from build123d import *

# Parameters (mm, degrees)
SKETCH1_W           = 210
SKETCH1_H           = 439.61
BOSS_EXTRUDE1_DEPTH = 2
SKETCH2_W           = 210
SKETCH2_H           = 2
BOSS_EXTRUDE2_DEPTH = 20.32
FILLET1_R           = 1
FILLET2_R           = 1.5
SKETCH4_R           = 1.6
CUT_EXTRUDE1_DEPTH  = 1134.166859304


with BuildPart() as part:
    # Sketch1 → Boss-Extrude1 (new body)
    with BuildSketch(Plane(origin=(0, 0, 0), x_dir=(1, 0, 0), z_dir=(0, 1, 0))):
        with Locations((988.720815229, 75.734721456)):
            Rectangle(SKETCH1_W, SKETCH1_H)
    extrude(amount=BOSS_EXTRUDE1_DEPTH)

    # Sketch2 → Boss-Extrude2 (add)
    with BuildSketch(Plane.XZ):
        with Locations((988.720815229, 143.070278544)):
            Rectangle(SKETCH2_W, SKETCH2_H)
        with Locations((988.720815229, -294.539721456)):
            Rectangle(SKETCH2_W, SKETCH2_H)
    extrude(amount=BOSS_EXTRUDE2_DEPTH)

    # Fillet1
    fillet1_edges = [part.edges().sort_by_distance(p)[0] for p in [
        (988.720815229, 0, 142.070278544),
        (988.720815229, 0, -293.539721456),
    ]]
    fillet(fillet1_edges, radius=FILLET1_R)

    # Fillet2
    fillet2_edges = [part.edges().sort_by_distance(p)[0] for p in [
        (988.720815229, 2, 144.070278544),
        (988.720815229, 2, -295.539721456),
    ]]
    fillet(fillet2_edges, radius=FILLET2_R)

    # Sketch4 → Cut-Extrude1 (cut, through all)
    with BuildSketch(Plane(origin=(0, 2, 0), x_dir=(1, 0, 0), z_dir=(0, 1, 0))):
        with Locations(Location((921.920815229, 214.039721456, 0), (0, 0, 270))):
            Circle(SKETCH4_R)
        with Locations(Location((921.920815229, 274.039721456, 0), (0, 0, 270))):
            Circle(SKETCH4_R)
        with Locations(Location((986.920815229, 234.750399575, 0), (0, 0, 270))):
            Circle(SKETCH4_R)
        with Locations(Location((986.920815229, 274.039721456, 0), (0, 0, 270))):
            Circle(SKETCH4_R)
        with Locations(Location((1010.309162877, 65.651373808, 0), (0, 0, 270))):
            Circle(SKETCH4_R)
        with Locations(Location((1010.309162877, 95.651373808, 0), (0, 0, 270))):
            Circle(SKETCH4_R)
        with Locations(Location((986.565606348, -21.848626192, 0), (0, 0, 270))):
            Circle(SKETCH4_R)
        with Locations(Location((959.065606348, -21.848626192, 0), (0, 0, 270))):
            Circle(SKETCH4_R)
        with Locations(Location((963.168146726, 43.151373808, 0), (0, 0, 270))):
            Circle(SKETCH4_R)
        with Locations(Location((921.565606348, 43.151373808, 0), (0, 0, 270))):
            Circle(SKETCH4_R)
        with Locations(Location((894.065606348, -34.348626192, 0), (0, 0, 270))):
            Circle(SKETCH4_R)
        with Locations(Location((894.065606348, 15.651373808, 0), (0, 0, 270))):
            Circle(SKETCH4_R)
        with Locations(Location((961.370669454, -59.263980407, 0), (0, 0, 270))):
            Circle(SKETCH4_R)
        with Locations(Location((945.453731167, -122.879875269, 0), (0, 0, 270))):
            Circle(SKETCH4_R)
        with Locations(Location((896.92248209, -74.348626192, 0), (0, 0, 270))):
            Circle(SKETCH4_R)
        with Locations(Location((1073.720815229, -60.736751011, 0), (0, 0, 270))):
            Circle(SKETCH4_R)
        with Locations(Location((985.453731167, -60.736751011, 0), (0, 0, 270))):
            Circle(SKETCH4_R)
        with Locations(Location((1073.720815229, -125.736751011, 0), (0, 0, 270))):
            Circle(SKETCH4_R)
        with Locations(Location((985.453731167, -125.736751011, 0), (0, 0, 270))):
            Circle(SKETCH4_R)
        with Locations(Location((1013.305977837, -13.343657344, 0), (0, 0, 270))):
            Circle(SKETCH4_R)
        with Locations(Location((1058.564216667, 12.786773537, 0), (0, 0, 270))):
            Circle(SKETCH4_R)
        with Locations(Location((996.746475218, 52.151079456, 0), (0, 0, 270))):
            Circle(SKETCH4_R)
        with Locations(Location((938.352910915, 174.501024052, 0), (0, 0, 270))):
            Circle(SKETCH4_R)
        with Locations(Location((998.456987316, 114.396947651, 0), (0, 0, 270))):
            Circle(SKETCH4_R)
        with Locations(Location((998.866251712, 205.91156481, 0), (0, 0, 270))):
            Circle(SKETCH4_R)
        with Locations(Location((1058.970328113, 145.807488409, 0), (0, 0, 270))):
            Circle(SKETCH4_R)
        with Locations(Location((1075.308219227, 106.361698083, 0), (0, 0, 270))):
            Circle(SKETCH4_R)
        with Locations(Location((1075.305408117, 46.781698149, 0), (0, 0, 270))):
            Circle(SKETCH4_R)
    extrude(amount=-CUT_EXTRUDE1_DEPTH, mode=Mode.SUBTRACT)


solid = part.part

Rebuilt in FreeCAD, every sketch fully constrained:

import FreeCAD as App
import Part
import Sketcher


def edges_at(feature, points):
    """Names of the edges that pass closest to the given points."""
    edges = feature.Shape.Edges
    near = lambda p: min(range(len(edges)), key=lambda i: edges[i].distToShape(Part.Vertex(*p))[0])
    return sorted({f"Edge{near(p) + 1}" for p in points})

doc = App.newDocument("Part")
body = doc.addObject("PartDesign::Body", "Body")

sketch1 = doc.addObject("Sketcher::SketchObject", "Sketch")
body.addObject(sketch1)
sketch1.AttachmentSupport = (doc.XZ_Plane, [""])
sketch1.MapMode = "FlatFace"
sketch1.addGeometry([
    Part.LineSegment(App.Vector(883.720815, -295.539721, 0), App.Vector(883.720815, 144.070279, 0)),
    Part.LineSegment(App.Vector(883.720815, 144.070279, 0), App.Vector(1093.720815, 144.070279, 0)),
    Part.LineSegment(App.Vector(1093.720815, 144.070279, 0), App.Vector(1093.720815, -295.539721, 0)),
    Part.LineSegment(App.Vector(1093.720815, -295.539721, 0), App.Vector(883.720815, -295.539721, 0)),
], False)
sketch1.addConstraint([
    Sketcher.Constraint("Coincident", 0, 2, 1, 1),
    Sketcher.Constraint("Coincident", 1, 2, 2, 1),
    Sketcher.Constraint("Coincident", 2, 2, 3, 1),
    Sketcher.Constraint("Coincident", 3, 2, 0, 1),
    Sketcher.Constraint("Vertical", 0),
    Sketcher.Constraint("Horizontal", 1),
    Sketcher.Constraint("Vertical", 2),
    Sketcher.Constraint("Horizontal", 3),
    Sketcher.Constraint("DistanceX", 1, 1, 1, 2, 210.0),
    Sketcher.Constraint("DistanceY", 0, 1, 0, 2, 439.61),
    Sketcher.Constraint("DistanceY", -1, 1, 0, 2, 144.070279),
    Sketcher.Constraint("DistanceX", -1, 1, 0, 2, 883.720815),
])
pad1 = doc.addObject("PartDesign::Pad", "Pad")
body.addObject(pad1)
pad1.Profile = sketch1
pad1.Length = 2
pad1.Reversed = True

sketch2 = doc.addObject("Sketcher::SketchObject", "Sketch001")
body.addObject(sketch2)
sketch2.AttachmentSupport = (doc.XZ_Plane, [""])
sketch2.MapMode = "FlatFace"
sketch2.addGeometry([
    Part.LineSegment(App.Vector(883.720815, 144.070279, 0), App.Vector(883.720815, 142.070279, 0)),
    Part.LineSegment(App.Vector(883.720815, 142.070279, 0), App.Vector(1093.720815, 142.070279, 0)),
    Part.LineSegment(App.Vector(1093.720815, 142.070279, 0), App.Vector(1093.720815, 144.070279, 0)),
    Part.LineSegment(App.Vector(1093.720815, 144.070279, 0), App.Vector(883.720815, 144.070279, 0)),
    Part.LineSegment(App.Vector(883.720815, -293.539721, 0), App.Vector(883.720815, -295.539721, 0)),
    Part.LineSegment(App.Vector(883.720815, -295.539721, 0), App.Vector(1093.720815, -295.539721, 0)),
    Part.LineSegment(App.Vector(1093.720815, -295.539721, 0), App.Vector(1093.720815, -293.539721, 0)),
    Part.LineSegment(App.Vector(1093.720815, -293.539721, 0), App.Vector(883.720815, -293.539721, 0)),
], False)
sketch2.addConstraint([
    Sketcher.Constraint("Coincident", 0, 2, 1, 1),
    Sketcher.Constraint("Coincident", 1, 2, 2, 1),
    Sketcher.Constraint("Coincident", 2, 2, 3, 1),
    Sketcher.Constraint("Coincident", 3, 2, 0, 1),
    Sketcher.Constraint("Coincident", 4, 2, 5, 1),
    Sketcher.Constraint("Coincident", 5, 2, 6, 1),
    Sketcher.Constraint("Coincident", 6, 2, 7, 1),
    Sketcher.Constraint("Coincident", 7, 2, 4, 1),
    Sketcher.Constraint("Vertical", 0),
    Sketcher.Constraint("Horizontal", 1),
    Sketcher.Constraint("Vertical", 2),
    Sketcher.Constraint("Horizontal", 3),
    Sketcher.Constraint("Vertical", 4),
    Sketcher.Constraint("Horizontal", 5),
    Sketcher.Constraint("Vertical", 6),
    Sketcher.Constraint("Horizontal", 7),
    Sketcher.Constraint("Vertical", 3, 2, 4, 2),
    Sketcher.Constraint("Vertical", 2, 2, 5, 2),
    Sketcher.Constraint("Equal", 2, 4),
    Sketcher.Constraint("DistanceX", 1, 1, 1, 2, 210.0),
    Sketcher.Constraint("DistanceY", 0, 2, 0, 1, 2.0),
    Sketcher.Constraint("DistanceY", 4, 2, 0, 2, 437.61),
    Sketcher.Constraint("DistanceY", -1, 1, 0, 2, 142.070279),
    Sketcher.Constraint("DistanceX", -1, 1, 0, 2, 883.720815),
])
pad2 = doc.addObject("PartDesign::Pad", "Pad001")
body.addObject(pad2)
pad2.Profile = sketch2
pad2.Length = 20.32
doc.recompute()

fillet = doc.addObject("PartDesign::Fillet", "Fillet")
body.addObject(fillet)
fillet.Base = (pad2, edges_at(pad2, [(988.721, 0, 142.07), (988.721, 0, -293.54)]))
fillet.Radius = 1
doc.recompute()

fillet2 = doc.addObject("PartDesign::Fillet", "Fillet001")
body.addObject(fillet2)
fillet2.Base = (fillet, edges_at(fillet, [(988.721, 2, 144.07), (988.721, 2, -295.54)]))
fillet2.Radius = 1.5

sketch3 = doc.addObject("Sketcher::SketchObject", "Sketch002")
body.addObject(sketch3)
sketch3.AttachmentSupport = (doc.XZ_Plane, [""])
sketch3.MapMode = "FlatFace"
sketch3.AttachmentOffset = App.Placement(App.Vector(0, 0, -2), App.Rotation())
sketch3.addGeometry([
    Part.Circle(App.Vector(921.920815, -214.039721, 0), App.Vector(0, 0, 1), 1.6),
    Part.Circle(App.Vector(921.920815, -274.039721, 0), App.Vector(0, 0, 1), 1.6),
    Part.Circle(App.Vector(986.920815, -234.7504, 0), App.Vector(0, 0, 1), 1.6),
    Part.Circle(App.Vector(986.920815, -274.039721, 0), App.Vector(0, 0, 1), 1.6),
    Part.Circle(App.Vector(1010.309163, -65.651374, 0), App.Vector(0, 0, 1), 1.6),
    Part.Circle(App.Vector(1010.309163, -95.651374, 0), App.Vector(0, 0, 1), 1.6),
    Part.Circle(App.Vector(986.565606, 21.848626, 0), App.Vector(0, 0, 1), 1.6),
    Part.Circle(App.Vector(959.065606, 21.848626, 0), App.Vector(0, 0, 1), 1.6),
    Part.Circle(App.Vector(963.168147, -43.151374, 0), App.Vector(0, 0, 1), 1.6),
    Part.Circle(App.Vector(921.565606, -43.151374, 0), App.Vector(0, 0, 1), 1.6),
    Part.Circle(App.Vector(894.065606, 34.348626, 0), App.Vector(0, 0, 1), 1.6),
    Part.Circle(App.Vector(894.065606, -15.651374, 0), App.Vector(0, 0, 1), 1.6),
    Part.Circle(App.Vector(961.370669, 59.26398, 0), App.Vector(0, 0, 1), 1.6),
    Part.Circle(App.Vector(945.453731, 122.879875, 0), App.Vector(0, 0, 1), 1.6),
    Part.Circle(App.Vector(896.922482, 74.348626, 0), App.Vector(0, 0, 1), 1.6),
    Part.Circle(App.Vector(1073.720815, 60.736751, 0), App.Vector(0, 0, 1), 1.6),
    Part.Circle(App.Vector(985.453731, 60.736751, 0), App.Vector(0, 0, 1), 1.6),
    Part.Circle(App.Vector(1073.720815, 125.736751, 0), App.Vector(0, 0, 1), 1.6),
    Part.Circle(App.Vector(985.453731, 125.736751, 0), App.Vector(0, 0, 1), 1.6),
    Part.Circle(App.Vector(1013.305978, 13.343657, 0), App.Vector(0, 0, 1), 1.6),
    Part.Circle(App.Vector(1058.564217, -12.786774, 0), App.Vector(0, 0, 1), 1.6),
    Part.Circle(App.Vector(996.746475, -52.151079, 0), App.Vector(0, 0, 1), 1.6),
    Part.Circle(App.Vector(938.352911, -174.501024, 0), App.Vector(0, 0, 1), 1.6),
    Part.Circle(App.Vector(998.456987, -114.396948, 0), App.Vector(0, 0, 1), 1.6),
    Part.Circle(App.Vector(998.866252, -205.911565, 0), App.Vector(0, 0, 1), 1.6),
    Part.Circle(App.Vector(1058.970328, -145.807488, 0), App.Vector(0, 0, 1), 1.6),
    Part.Circle(App.Vector(1075.308219, -106.361698, 0), App.Vector(0, 0, 1), 1.6),
    Part.Circle(App.Vector(1075.305408, -46.781698, 0), App.Vector(0, 0, 1), 1.6),
], False)
sketch3.addConstraint([
    Sketcher.Constraint("Equal", 0, 1),
    Sketcher.Constraint("Equal", 1, 2),
    Sketcher.Constraint("Equal", 2, 3),
    Sketcher.Constraint("Equal", 3, 4),
    Sketcher.Constraint("Equal", 4, 5),
    Sketcher.Constraint("Equal", 5, 6),
    Sketcher.Constraint("Equal", 6, 7),
    Sketcher.Constraint("Equal", 7, 8),
    Sketcher.Constraint("Equal", 8, 9),
    Sketcher.Constraint("Equal", 9, 10),
    Sketcher.Constraint("Equal", 10, 11),
    Sketcher.Constraint("Equal", 11, 12),
    Sketcher.Constraint("Equal", 12, 13),
    Sketcher.Constraint("Equal", 13, 14),
    Sketcher.Constraint("Equal", 14, 15),
    Sketcher.Constraint("Equal", 15, 16),
    Sketcher.Constraint("Equal", 16, 17),
    Sketcher.Constraint("Equal", 17, 18),
    Sketcher.Constraint("Equal", 18, 19),
    Sketcher.Constraint("Equal", 19, 20),
    Sketcher.Constraint("Equal", 20, 21),
    Sketcher.Constraint("Equal", 21, 22),
    Sketcher.Constraint("Equal", 22, 23),
    Sketcher.Constraint("Equal", 23, 24),
    Sketcher.Constraint("Equal", 24, 25),
    Sketcher.Constraint("Equal", 25, 26),
    Sketcher.Constraint("Equal", 26, 27),
    Sketcher.Constraint("Horizontal", 1, 3, 3, 3),
    Sketcher.Constraint("Horizontal", 6, 3, 7, 3),
    Sketcher.Constraint("Horizontal", 8, 3, 9, 3),
    Sketcher.Constraint("Horizontal", 15, 3, 16, 3),
    Sketcher.Constraint("Horizontal", 17, 3, 18, 3),
    Sketcher.Constraint("Vertical", 0, 3, 1, 3),
    Sketcher.Constraint("Vertical", 2, 3, 3, 3),
    Sketcher.Constraint("Vertical", 4, 3, 5, 3),
    Sketcher.Constraint("Vertical", 10, 3, 11, 3),
    Sketcher.Constraint("Vertical", 15, 3, 17, 3),
    Sketcher.Constraint("Vertical", 16, 3, 18, 3),
    Sketcher.Constraint("Diameter", 0, 3.2),
    Sketcher.Constraint("DistanceY", 1, 3, 0, 3, 60.0),
    Sketcher.Constraint("DistanceX", 0, 3, 2, 3, 65.0),
    Sketcher.Constraint("DistanceY", 5, 3, 4, 3, 30.0),
    Sketcher.Constraint("DistanceY", 8, 3, 7, 3, 65.0),
    Sketcher.Constraint("DistanceX", 9, 3, 6, 3, 65.0),
    Sketcher.Constraint("DistanceX", 10, 3, 7, 3, 65.0),
    Sketcher.Constraint("DistanceY", 4, 3, 10, 3, 100.0),
    Sketcher.Constraint("DistanceY", 11, 3, 10, 3, 50.0),
    Sketcher.Constraint("DistanceY", 10, 3, 14, 3, 40.0),
    Sketcher.Constraint("DistanceX", 13, 3, 16, 3, 40.0),
    Sketcher.Constraint("DistanceY", 15, 3, 17, 3, 65.0),
    Sketcher.Constraint("DistanceY", 4, 3, 6, 3, 87.5),
    Sketcher.Constraint("DistanceX", 7, 3, 6, 3, 27.5),
    Sketcher.Constraint("DistanceY", 26, 3, 27, 3, 59.58),
    Sketcher.Constraint("DistanceY", 2, 3, -1, 1, 234.7504),
    Sketcher.Constraint("DistanceY", 26, 3, -1, 1, 106.361698),
    Sketcher.Constraint("DistanceY", 4, 3, 20, 3, 52.8646),
    Sketcher.Constraint("DistanceX", 20, 3, 15, 3, 15.156599),
    Sketcher.Constraint("DistanceY", 0, 3, -1, 1, 214.039721),
    Sketcher.Constraint("DistanceX", -1, 1, 12, 3, 961.370669),
    Sketcher.Constraint("DistanceY", -1, 1, 12, 3, 59.26398),
    Sketcher.Constraint("DistanceX", -1, 1, 13, 3, 945.453731),
    Sketcher.Constraint("DistanceY", -1, 1, 15, 3, 60.736751),
    Sketcher.Constraint("DistanceY", 21, 3, -1, 1, 52.151079),
    Sketcher.Constraint("DistanceX", -1, 1, 22, 3, 938.352911),
    Sketcher.Constraint("DistanceX", -1, 1, 24, 3, 998.866252),
    Sketcher.Constraint("DistanceX", -1, 1, 25, 3, 1058.970328),
    Sketcher.Constraint("DistanceY", 25, 3, -1, 1, 145.807488),
    Sketcher.Constraint("DistanceX", -1, 1, 26, 3, 1075.308219),
    Sketcher.Constraint("DistanceX", -1, 1, 27, 3, 1075.305408),
    Sketcher.Constraint("DistanceX", 0, 3, 6, 3, 64.644791),
    Sketcher.Constraint("DistanceX", 7, 3, 8, 3, 4.10254),
    Sketcher.Constraint("DistanceY", 7, 3, 13, 3, 101.031249),
    Sketcher.Constraint("DistanceX", 14, 3, 13, 3, 48.531249),
    Sketcher.Constraint("DistanceX", 6, 3, 15, 3, 87.155209),
    Sketcher.Constraint("DistanceX", 6, 3, 19, 3, 26.740371),
    Sketcher.Constraint("DistanceY", 19, 3, 6, 3, 8.504969),
    Sketcher.Constraint("DistanceX", 12, 3, 19, 3, 51.935308),
    Sketcher.Constraint("DistanceX", 8, 3, 21, 3, 33.578328),
    Sketcher.Constraint("DistanceX", 22, 3, 5, 3, 71.956252),
    Sketcher.Constraint("DistanceY", 22, 3, 5, 3, 78.84965),
    Sketcher.Constraint("DistanceY", 23, 3, 21, 3, 62.245868),
    Sketcher.Constraint("DistanceX", 8, 3, 23, 3, 35.288841),
    Sketcher.Constraint("DistanceY", 24, 3, 22, 3, 31.410541),
    Sketcher.Constraint("DistanceY", 4, 3, -1, 1, 65.651374),
])
pocket1 = doc.addObject("PartDesign::Pocket", "Pocket")
body.addObject(pocket1)
pocket1.Profile = sketch3
pocket1.Type = "ThroughAll"
pocket1.Reversed = True

doc.recompute()
